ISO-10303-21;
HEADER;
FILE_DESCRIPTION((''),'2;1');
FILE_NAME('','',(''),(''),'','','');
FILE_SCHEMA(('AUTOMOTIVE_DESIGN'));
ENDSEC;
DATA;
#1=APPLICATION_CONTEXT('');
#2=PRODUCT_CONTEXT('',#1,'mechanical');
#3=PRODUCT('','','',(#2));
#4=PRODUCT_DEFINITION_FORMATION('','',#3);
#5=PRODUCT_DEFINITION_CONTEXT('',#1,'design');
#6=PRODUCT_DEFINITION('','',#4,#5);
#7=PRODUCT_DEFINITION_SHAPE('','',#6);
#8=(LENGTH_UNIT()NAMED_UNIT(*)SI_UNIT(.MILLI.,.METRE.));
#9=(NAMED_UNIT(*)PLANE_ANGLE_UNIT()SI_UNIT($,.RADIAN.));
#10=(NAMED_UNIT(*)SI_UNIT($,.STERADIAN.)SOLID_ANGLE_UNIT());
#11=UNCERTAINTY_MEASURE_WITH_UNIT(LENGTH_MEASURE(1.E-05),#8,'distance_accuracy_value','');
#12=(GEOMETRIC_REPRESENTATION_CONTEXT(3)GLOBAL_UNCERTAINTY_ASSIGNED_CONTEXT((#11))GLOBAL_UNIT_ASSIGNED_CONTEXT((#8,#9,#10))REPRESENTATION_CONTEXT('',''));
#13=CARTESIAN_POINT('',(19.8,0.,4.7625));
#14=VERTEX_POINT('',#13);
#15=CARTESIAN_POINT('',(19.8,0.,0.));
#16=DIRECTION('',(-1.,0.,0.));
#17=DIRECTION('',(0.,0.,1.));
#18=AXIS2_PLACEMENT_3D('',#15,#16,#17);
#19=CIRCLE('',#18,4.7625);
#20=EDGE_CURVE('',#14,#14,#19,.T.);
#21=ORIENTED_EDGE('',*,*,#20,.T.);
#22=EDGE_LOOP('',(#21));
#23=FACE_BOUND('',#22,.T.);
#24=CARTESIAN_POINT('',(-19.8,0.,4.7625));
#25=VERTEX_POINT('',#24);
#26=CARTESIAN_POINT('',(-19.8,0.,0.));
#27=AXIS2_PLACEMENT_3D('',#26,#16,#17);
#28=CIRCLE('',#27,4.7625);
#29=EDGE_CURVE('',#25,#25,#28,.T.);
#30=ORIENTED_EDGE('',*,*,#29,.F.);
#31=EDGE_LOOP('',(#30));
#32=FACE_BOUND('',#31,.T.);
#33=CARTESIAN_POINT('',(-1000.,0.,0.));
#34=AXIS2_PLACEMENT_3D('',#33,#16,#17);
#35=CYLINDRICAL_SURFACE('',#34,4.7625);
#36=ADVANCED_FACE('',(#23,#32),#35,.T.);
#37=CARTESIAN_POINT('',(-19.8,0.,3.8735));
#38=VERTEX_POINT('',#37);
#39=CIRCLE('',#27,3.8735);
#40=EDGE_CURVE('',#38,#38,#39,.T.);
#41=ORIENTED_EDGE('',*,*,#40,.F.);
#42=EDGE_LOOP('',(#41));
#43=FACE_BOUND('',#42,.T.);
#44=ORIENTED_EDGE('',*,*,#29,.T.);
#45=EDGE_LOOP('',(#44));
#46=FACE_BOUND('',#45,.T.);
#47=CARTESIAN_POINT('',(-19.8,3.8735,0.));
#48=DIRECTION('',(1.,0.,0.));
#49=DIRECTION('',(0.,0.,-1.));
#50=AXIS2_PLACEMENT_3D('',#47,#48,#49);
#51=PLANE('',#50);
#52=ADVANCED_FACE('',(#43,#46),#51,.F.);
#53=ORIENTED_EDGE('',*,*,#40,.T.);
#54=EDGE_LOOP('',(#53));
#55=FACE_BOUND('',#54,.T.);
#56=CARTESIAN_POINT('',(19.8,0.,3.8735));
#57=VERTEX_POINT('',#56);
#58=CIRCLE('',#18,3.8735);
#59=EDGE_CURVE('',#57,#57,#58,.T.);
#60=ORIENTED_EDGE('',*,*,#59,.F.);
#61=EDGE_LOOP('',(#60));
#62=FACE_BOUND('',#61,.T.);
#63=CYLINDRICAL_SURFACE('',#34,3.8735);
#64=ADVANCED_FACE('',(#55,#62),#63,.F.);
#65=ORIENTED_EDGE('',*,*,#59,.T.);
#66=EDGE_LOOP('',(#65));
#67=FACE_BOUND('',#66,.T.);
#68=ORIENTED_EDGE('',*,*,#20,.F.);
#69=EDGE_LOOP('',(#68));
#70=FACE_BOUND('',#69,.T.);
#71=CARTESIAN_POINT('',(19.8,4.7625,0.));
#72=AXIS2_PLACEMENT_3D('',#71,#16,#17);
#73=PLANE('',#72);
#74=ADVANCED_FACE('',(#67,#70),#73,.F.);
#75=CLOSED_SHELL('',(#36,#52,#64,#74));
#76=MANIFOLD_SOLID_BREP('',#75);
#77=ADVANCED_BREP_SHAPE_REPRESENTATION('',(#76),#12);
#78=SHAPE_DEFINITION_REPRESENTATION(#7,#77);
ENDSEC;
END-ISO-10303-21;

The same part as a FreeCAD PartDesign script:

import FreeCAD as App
import Part
import Sketcher

doc = App.newDocument("Part")
body = doc.addObject("PartDesign::Body", "Body")

# Sketch on XY plane
sketch1 = body.newObject("Sketcher::SketchObject", "Sketch")
sketch1.AttachmentSupport = (doc.getObject("XY_Plane"), [""])
sketch1.MapMode = "FlatFace"
sketch1.addGeometry([
    Part.LineSegment(App.Vector(-19.8, 4.8, 0), App.Vector(-19.8, 3.9, 0)),
    Part.LineSegment(App.Vector(-19.8, 3.9, 0), App.Vector(19.8, 3.9, 0)),
    Part.LineSegment(App.Vector(19.8, 3.9, 0), App.Vector(19.8, 4.8, 0)),
    Part.LineSegment(App.Vector(19.8, 4.8, 0), App.Vector(-19.8, 4.8, 0)),
], False)
sketch1.addConstraint([
    Sketcher.Constraint("Coincident", 0, 2, 1, 1),
    Sketcher.Constraint("Coincident", 1, 2, 2, 1),
    Sketcher.Constraint("Coincident", 2, 2, 3, 1),
    Sketcher.Constraint("Coincident", 3, 2, 0, 1),
    Sketcher.Constraint("Vertical", 0),
    Sketcher.Constraint("Horizontal", 1),
    Sketcher.Constraint("Vertical", 2),
    Sketcher.Constraint("Horizontal", 3),
    Sketcher.Constraint("DistanceX", 1, 1, 1, 2, 39.6),
    Sketcher.Constraint("DistanceX", 0, 2, -1, 1, 19.8),
    Sketcher.Constraint("DistanceY", 0, 2, 0, 1, 0.889),
    Sketcher.Constraint("DistanceY", -1, 1, 0, 2, 3.8735),
])
revolution = body.newObject("PartDesign::Revolution", "Revolution")
revolution.Profile = sketch1
revolution.ReferenceAxis = (sketch1, ["H_Axis"])
revolution.Angle = 360

doc.recompute()
